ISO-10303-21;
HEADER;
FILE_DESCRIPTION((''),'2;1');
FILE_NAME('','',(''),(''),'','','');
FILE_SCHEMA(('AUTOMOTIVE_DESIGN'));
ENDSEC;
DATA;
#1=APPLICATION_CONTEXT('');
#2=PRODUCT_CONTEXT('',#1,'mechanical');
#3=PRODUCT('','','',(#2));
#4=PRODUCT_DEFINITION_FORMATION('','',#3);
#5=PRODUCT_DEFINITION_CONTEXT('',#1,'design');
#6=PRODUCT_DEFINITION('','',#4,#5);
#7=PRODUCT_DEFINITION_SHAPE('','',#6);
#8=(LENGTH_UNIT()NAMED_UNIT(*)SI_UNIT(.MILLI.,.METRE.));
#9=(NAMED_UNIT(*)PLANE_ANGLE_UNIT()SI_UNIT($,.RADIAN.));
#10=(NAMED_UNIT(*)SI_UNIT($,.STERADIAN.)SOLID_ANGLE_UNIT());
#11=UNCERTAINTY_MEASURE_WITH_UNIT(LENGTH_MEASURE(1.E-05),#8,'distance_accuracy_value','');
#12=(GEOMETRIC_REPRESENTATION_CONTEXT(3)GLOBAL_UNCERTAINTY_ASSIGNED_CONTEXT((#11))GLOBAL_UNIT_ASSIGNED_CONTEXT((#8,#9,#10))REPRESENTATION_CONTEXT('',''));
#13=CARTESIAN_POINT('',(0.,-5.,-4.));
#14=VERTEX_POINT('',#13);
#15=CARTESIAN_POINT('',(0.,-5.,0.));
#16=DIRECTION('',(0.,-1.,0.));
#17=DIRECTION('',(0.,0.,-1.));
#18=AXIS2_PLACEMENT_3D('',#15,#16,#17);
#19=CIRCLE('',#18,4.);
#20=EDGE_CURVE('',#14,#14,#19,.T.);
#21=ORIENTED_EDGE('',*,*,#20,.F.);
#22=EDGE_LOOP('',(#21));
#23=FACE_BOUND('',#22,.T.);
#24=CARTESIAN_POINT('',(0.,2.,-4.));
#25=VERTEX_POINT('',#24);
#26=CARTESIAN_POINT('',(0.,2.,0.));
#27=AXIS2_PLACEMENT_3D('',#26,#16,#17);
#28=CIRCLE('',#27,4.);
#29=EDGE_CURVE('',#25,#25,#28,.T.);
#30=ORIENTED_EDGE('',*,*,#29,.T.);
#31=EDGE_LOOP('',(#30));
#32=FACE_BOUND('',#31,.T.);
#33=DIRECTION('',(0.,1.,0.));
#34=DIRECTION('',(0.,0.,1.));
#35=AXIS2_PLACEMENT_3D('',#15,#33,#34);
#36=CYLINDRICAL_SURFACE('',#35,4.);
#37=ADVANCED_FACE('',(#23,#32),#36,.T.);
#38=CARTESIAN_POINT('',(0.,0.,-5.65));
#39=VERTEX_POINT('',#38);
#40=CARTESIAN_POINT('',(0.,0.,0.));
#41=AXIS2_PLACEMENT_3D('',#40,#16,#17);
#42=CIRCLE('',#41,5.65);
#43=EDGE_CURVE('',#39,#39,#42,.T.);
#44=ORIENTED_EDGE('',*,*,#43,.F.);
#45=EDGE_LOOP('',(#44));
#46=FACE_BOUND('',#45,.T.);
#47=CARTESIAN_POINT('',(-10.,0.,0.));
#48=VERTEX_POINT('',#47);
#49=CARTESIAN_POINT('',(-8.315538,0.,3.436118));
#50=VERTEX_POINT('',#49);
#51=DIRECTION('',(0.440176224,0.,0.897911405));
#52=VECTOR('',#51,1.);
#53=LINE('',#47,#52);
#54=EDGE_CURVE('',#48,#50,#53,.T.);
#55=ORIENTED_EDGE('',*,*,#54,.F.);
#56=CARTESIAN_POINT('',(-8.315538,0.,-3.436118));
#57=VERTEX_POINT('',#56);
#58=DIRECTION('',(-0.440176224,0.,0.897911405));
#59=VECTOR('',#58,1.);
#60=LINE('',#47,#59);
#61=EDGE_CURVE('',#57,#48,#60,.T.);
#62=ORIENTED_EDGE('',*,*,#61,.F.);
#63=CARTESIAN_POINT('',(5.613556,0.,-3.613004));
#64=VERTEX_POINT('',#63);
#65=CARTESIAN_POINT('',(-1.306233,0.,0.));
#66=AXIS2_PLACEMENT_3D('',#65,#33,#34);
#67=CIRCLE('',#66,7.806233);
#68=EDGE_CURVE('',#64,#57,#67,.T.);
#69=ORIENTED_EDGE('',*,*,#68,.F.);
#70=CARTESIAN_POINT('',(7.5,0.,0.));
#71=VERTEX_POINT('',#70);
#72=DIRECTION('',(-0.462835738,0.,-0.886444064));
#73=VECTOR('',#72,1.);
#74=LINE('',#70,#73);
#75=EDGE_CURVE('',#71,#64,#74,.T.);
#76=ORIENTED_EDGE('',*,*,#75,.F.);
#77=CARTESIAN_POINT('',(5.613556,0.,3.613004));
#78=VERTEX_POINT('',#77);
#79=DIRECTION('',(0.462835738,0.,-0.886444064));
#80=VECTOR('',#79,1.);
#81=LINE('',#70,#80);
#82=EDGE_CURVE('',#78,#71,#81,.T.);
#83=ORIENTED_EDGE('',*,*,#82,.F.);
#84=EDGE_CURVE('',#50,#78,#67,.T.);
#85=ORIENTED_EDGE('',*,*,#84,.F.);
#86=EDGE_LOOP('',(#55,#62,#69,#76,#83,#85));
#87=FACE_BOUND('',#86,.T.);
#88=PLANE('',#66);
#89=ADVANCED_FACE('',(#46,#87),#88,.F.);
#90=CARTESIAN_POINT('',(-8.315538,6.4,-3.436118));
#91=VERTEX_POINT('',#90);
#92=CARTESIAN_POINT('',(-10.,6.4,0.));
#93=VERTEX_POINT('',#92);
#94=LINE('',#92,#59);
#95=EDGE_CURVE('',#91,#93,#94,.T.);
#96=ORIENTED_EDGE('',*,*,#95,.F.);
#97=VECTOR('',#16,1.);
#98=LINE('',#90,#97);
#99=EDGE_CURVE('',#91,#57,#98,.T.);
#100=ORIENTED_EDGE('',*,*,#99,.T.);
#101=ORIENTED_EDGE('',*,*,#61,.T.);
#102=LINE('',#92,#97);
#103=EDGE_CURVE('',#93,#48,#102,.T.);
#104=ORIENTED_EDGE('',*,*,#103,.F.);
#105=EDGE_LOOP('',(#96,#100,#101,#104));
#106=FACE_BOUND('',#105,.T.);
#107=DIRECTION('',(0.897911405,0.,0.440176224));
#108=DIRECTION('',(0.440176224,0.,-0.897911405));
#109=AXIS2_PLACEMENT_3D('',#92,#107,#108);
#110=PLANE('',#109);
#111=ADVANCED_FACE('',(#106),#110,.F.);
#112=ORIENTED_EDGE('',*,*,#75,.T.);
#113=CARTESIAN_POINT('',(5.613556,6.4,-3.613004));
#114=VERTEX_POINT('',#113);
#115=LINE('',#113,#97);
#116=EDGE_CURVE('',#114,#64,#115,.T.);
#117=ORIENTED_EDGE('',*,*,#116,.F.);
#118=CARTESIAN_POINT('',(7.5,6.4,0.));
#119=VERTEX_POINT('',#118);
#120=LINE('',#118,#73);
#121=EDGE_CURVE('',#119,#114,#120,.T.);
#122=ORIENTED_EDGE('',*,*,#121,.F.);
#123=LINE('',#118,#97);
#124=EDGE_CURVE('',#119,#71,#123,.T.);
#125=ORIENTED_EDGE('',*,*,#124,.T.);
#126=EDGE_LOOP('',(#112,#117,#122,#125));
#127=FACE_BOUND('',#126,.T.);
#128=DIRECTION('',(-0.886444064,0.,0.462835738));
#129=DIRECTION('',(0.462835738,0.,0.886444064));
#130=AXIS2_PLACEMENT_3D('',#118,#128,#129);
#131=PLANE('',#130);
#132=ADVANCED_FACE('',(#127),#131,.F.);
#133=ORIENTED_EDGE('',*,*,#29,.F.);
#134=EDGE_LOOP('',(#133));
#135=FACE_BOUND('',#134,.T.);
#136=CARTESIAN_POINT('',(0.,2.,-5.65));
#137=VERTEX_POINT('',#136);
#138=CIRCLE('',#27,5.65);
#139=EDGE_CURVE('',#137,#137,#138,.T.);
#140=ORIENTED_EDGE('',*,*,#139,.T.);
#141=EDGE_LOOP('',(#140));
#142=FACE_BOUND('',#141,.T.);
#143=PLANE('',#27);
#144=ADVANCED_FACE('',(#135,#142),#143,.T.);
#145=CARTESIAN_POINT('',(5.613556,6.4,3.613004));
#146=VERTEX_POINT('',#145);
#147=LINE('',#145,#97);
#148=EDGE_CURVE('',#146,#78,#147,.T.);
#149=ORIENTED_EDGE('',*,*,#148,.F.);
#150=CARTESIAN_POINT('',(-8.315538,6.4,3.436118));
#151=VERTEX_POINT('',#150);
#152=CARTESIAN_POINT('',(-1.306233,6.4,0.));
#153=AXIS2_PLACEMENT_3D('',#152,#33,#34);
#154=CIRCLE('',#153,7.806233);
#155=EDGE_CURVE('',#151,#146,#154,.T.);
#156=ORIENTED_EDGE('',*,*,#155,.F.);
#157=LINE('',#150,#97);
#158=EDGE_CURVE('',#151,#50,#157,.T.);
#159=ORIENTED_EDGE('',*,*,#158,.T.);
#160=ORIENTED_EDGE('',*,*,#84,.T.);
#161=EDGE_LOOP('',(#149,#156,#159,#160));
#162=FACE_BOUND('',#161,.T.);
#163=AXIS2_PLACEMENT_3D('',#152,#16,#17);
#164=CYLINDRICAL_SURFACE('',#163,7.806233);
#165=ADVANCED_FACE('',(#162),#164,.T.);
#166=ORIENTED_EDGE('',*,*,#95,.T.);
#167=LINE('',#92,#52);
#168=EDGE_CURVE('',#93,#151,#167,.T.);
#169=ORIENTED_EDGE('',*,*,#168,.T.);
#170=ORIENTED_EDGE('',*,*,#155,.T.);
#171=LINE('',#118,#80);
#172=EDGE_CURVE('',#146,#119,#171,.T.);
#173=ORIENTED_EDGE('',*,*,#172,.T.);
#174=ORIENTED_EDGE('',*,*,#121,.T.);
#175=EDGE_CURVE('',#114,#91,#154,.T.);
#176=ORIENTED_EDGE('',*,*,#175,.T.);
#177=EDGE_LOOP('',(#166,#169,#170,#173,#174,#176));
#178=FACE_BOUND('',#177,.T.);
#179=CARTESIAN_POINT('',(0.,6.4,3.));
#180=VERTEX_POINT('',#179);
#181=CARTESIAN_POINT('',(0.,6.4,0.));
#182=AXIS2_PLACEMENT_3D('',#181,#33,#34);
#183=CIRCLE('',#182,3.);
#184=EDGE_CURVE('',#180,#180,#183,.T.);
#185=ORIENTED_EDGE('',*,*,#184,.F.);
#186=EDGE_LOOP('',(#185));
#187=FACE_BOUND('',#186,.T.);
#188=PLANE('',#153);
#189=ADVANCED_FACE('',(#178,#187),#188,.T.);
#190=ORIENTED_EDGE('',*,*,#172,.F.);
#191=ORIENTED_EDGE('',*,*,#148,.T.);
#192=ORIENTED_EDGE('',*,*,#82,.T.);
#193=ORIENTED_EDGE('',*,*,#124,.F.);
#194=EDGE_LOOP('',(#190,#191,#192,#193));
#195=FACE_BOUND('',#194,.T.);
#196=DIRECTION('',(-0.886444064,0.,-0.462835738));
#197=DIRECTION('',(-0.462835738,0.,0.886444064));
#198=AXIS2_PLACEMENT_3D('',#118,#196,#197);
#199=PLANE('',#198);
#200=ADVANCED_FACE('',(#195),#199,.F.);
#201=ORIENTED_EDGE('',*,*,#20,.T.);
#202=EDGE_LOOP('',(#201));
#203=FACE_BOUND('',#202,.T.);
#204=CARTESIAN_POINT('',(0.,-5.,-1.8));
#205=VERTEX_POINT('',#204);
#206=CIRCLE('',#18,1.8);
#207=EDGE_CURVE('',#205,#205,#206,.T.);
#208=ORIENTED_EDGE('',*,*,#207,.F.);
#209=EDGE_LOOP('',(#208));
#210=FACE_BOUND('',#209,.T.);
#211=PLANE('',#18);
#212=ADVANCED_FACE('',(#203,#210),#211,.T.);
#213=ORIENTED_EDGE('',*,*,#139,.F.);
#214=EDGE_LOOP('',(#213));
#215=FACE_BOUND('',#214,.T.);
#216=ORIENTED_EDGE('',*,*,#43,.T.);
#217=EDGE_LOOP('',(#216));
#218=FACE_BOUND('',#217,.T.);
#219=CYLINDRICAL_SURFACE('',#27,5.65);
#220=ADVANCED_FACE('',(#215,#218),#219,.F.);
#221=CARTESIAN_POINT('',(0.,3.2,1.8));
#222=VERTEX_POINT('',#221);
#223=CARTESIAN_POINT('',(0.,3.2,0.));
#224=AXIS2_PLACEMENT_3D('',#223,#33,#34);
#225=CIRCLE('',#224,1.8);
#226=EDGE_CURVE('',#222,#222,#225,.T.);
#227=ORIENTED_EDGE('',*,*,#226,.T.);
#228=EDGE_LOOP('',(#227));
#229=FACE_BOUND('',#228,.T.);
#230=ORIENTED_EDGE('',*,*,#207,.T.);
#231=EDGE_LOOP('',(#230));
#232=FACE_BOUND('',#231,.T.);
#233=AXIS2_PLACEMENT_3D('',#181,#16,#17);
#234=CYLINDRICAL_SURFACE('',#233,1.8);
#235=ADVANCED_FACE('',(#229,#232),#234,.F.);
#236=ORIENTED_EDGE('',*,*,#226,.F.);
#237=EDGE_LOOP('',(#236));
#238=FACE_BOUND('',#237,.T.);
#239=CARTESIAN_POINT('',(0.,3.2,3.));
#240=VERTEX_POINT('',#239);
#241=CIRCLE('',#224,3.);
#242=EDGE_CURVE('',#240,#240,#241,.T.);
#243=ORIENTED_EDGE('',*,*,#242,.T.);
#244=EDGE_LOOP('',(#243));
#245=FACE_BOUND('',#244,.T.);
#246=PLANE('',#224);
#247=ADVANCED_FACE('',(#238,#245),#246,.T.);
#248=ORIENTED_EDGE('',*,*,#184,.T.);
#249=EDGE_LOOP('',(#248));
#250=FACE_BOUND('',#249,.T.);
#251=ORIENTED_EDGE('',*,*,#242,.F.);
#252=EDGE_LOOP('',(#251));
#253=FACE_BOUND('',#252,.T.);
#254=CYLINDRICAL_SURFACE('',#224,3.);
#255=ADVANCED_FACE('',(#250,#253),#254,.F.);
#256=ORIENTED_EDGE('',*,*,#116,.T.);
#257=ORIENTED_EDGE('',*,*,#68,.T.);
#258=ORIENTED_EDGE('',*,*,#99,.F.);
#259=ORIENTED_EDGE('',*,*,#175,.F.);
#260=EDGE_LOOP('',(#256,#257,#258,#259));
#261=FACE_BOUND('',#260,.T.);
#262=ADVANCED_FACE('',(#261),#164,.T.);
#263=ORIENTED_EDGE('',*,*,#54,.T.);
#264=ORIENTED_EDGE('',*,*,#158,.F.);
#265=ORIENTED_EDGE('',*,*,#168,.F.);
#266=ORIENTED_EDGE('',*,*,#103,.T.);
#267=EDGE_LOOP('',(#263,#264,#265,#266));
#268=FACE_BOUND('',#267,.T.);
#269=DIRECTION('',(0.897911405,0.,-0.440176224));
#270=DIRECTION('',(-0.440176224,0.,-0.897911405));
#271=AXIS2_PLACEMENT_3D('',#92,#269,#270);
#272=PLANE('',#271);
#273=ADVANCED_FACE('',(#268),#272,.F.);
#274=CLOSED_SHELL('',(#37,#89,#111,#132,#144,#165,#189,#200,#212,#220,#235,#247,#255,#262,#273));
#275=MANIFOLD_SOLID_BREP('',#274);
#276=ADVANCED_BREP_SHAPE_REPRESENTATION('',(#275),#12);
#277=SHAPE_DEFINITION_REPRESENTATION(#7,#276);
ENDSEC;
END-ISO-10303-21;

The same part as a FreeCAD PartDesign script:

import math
import FreeCAD as App
import Part
import Sketcher
from FreeCAD import Vector
Q = App.Units.Quantity

doc = App.newDocument("Part")
body = doc.addObject("PartDesign::Body", "Body")

# Sketch on XZ plane
sketch1 = body.newObject("Sketcher::SketchObject", "Sketch")
sketch1.AttachmentSupport = (doc.getObject("XZ_Plane"), [""])
sketch1.MapMode = "FlatFace"
sketch1.addGeometry([
    Part.LineSegment(Vector(-8.315538, -3.436118, 0), Vector(-10, 0, 0)),  # 0
    Part.LineSegment(Vector(-10, 0, 0), Vector(-8.315538, 3.436118, 0)),  # 1
    Part.ArcOfCircle(Part.Circle(Vector(-1.306233, 0, 0), Vector(0, 0, 1), 7.806233), math.radians(27.570244), math.radians(153.884875)),  # 2
    Part.LineSegment(Vector(5.613556, 3.613004, 0), Vector(7.5, 0, 0)),  # 3
    Part.LineSegment(Vector(7.5, 0, 0), Vector(5.613556, -3.613004, 0)),  # 4
    Part.ArcOfCircle(Part.Circle(Vector(-1.306233, 0, 0), Vector(0, 0, 1), 7.806233), math.radians(-153.884875), math.radians(-27.570244)),  # 5
    Part.Circle(Vector(0, 0, 0), Vector(0, 0, 1), 1.8),  # 6
], False)
sketch1.addConstraint([
    Sketcher.Constraint("Coincident", 0, 2, 1, 1),
    Sketcher.Constraint("Tangent", 1, 2, 2, 2),
    Sketcher.Constraint("Tangent", 2, 1, 3, 1),
    Sketcher.Constraint("Coincident", 3, 2, 4, 1),
    Sketcher.Constraint("Tangent", 4, 2, 5, 2),
    Sketcher.Constraint("Tangent", 5, 1, 0, 1),
    Sketcher.Constraint("Coincident", 6, 3, -1, 1),
    Sketcher.Constraint("Coincident", 5, 3, 2, 3),
    Sketcher.Constraint("Equal", 2, 5),
    Sketcher.Constraint("Symmetric", 2, 1, 4, 2, -1),
    Sketcher.Constraint("PointOnObject", 0, 2, -1),
    Sketcher.Constraint("Diameter", 6, Q("3.6 mm")),
    Sketcher.Constraint("DistanceX", 0, 2, -1, 1, Q("10 mm")),
    Sketcher.Constraint("DistanceX", -1, 1, 3, 2, Q("7.5 mm")),
    Sketcher.Constraint("Radius", 2, Q("7.806233 mm")),
    Sketcher.Constraint("Distance", 0, Q("3.82679 mm")),
])
pad1 = body.newObject("PartDesign::Pad", "Pad")
pad1.Profile = sketch1
pad1.Length = 6.4
pad1.Reversed = True

# Sketch on XZ plane
sketch2 = body.newObject("Sketcher::SketchObject", "Sketch001")
sketch2.AttachmentSupport = (doc.getObject("XZ_Plane"), [""])
sketch2.MapMode = "FlatFace"
sketch2.AttachmentOffset = App.Placement(Vector(0, 0, -6.4), App.Rotation())
sketch2.addGeometry(Part.Circle(Vector(0, 0, 0), Vector(0, 0, 1), 3), False)
sketch2.addConstraint([
    Sketcher.Constraint("Coincident", 0, 3, -1, 1),
    Sketcher.Constraint("Diameter", 0, Q("6 mm")),
])
pocket1 = body.newObject("PartDesign::Pocket", "Pocket")
pocket1.Profile = sketch2
pocket1.Length = 3.2
pocket1.Reversed = True

# Sketch on XZ plane
sketch3 = body.newObject("Sketcher::SketchObject", "Sketch002")
sketch3.AttachmentSupport = (doc.getObject("XZ_Plane"), [""])
sketch3.MapMode = "FlatFace"
sketch3.addGeometry([
    Part.Circle(Vector(0, 0, 0), Vector(0, 0, 1), 4),
    Part.Circle(Vector(0, 0, 0), Vector(0, 0, 1), 1.8),
], False)
sketch3.addConstraint([
    Sketcher.Constraint("Coincident", 0, 3, -1, 1),
    Sketcher.Constraint("Coincident", 1, 3, -1, 1),
    Sketcher.Constraint("Diameter", 0, Q("8 mm")),
    Sketcher.Constraint("Diameter", 1, Q("3.6 mm")),
])
pad2 = body.newObject("PartDesign::Pad", "Pad001")
pad2.Profile = sketch3
pad2.Length = 5

# Sketch on XZ plane
sketch4 = body.newObject("Sketcher::SketchObject", "Sketch003")
sketch4.AttachmentSupport = (doc.getObject("XZ_Plane"), [""])
sketch4.MapMode = "FlatFace"
sketch4.addGeometry([
    Part.Circle(Vector(0, 0, 0), Vector(0, 0, 1), 5.65),
    Part.Circle(Vector(0, 0, 0), Vector(0, 0, 1), 4),
], False)
sketch4.addConstraint([
    Sketcher.Constraint("Coincident", 0, 3, -1, 1),
    Sketcher.Constraint("Coincident", 1, 3, -1, 1),
    Sketcher.Constraint("Diameter", 1, Q("8 mm")),
    Sketcher.Constraint("Diameter", 0, Q("11.3 mm")),
])
pocket2 = body.newObject("PartDesign::Pocket", "Pocket001")
pocket2.Profile = sketch4
pocket2.Length = 2

doc.recompute()
